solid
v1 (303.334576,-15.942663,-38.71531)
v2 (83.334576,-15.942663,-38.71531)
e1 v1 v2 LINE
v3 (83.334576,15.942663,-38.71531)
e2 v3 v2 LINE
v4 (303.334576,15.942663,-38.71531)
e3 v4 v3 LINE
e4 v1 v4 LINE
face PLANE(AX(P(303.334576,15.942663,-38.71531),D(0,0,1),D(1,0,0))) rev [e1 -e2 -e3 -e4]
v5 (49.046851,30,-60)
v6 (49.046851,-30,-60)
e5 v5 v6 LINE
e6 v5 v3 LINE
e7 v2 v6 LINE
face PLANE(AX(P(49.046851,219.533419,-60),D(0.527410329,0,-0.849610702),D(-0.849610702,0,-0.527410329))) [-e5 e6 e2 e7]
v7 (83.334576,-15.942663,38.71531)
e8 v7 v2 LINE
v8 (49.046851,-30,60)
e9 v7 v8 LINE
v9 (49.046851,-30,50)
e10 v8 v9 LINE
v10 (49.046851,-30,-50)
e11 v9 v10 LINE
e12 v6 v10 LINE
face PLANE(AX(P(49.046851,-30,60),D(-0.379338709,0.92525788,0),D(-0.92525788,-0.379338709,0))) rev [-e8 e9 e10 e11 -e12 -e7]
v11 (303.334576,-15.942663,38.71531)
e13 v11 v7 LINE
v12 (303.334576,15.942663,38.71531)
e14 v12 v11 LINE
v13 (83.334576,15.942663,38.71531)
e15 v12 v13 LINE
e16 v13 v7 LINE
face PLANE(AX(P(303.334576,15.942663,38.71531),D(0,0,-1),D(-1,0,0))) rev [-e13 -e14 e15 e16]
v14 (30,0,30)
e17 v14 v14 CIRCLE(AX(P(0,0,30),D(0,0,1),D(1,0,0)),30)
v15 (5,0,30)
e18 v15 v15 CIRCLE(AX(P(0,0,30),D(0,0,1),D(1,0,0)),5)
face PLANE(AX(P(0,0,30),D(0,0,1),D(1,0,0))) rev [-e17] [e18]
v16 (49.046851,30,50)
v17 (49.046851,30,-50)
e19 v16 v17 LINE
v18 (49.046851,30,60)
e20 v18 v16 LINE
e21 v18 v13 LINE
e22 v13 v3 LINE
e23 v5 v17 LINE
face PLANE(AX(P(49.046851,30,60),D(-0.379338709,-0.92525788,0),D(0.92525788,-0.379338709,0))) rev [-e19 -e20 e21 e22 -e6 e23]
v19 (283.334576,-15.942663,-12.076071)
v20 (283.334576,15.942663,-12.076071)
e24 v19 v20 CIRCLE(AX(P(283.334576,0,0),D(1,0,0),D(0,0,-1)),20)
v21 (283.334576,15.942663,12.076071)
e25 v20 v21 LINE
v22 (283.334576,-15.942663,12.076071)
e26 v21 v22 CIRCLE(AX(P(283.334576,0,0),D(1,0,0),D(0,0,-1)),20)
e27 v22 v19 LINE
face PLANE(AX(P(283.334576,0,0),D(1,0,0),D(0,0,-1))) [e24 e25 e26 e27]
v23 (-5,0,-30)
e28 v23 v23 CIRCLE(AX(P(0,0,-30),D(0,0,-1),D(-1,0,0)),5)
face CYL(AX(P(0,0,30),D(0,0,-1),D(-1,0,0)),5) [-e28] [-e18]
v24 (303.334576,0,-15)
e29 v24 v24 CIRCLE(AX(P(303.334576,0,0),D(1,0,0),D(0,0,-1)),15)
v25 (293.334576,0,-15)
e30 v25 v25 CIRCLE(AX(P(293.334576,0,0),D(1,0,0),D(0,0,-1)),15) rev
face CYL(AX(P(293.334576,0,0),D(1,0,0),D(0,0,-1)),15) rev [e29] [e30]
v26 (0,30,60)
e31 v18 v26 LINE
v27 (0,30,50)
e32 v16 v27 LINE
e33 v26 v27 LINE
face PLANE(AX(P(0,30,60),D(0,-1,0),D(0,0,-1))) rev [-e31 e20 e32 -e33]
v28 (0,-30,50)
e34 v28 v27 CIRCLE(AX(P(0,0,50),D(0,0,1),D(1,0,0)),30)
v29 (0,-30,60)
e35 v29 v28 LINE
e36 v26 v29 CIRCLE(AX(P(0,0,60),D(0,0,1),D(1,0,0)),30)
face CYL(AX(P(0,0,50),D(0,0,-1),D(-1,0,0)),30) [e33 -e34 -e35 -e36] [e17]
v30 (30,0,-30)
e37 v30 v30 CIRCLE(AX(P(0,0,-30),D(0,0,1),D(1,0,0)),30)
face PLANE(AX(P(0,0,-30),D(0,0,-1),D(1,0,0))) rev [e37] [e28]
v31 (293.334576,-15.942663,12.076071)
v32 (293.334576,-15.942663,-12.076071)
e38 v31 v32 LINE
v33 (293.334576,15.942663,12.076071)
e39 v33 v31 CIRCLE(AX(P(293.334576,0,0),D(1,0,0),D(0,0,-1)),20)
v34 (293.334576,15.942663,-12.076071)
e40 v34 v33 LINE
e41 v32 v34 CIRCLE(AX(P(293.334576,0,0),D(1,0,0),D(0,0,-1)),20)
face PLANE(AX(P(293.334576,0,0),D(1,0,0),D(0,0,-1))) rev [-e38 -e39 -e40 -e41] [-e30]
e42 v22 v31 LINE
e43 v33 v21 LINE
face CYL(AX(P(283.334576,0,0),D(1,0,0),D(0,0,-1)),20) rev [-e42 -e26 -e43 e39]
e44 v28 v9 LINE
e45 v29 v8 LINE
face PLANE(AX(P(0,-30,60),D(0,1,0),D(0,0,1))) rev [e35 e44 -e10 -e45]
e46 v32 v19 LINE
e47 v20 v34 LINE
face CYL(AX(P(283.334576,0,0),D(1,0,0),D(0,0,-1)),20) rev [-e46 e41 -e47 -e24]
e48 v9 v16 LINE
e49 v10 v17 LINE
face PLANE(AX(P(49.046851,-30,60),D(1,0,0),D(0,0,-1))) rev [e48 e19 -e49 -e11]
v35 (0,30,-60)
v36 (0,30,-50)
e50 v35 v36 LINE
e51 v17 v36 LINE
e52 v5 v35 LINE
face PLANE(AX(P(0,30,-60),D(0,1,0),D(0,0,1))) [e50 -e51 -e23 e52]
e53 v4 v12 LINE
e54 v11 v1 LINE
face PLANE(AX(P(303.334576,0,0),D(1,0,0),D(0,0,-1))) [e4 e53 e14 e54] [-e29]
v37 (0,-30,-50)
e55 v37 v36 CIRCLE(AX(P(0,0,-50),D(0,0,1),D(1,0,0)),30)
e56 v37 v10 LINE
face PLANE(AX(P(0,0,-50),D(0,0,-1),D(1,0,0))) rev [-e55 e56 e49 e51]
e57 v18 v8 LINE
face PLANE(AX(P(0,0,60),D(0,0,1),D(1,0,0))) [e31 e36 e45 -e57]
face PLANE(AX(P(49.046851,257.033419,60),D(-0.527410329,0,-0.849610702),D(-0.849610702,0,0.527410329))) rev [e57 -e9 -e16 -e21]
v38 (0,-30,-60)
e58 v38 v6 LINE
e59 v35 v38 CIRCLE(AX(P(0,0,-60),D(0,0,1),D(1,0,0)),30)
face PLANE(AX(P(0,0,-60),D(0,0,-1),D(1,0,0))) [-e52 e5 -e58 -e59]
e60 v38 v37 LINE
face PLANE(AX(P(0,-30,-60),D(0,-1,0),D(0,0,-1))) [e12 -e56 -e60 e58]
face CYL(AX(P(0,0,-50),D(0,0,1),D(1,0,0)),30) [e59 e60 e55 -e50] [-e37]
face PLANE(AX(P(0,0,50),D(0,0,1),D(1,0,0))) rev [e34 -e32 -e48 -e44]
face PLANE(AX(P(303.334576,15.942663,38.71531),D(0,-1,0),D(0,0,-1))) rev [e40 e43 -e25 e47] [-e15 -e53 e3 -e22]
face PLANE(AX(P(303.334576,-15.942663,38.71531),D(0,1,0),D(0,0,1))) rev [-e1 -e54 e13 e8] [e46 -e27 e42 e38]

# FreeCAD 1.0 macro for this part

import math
import FreeCAD as App
import Part
import Sketcher

V = App.Vector

doc = App.newDocument("Part")
body = doc.addObject("PartDesign::Body", "Body")

# Sketch on XY plane
sketch1 = body.newObject("Sketcher::SketchObject", "Sketch")
sketch1.AttachmentSupport = (doc.getObject("XY_Plane"), [""])
sketch1.MapMode = "FlatFace"
sketch1.addGeometry(Part.Circle(V(0, 0, 0), V(0, 0, 1), 5), False)
sketch1.addConstraint([
    Sketcher.Constraint("Coincident", 0, 3, -1, 1),
    Sketcher.Constraint("Diameter", 0, 10.0),
])
pad1 = body.newObject("PartDesign::Pad", "Pad")
pad1.Profile = sketch1
pad1.Length = 60
pad1.Midplane = True

# Sketch on XY plane
sketch2 = body.newObject("Sketcher::SketchObject", "Sketch001")
sketch2.AttachmentSupport = (doc.getObject("XY_Plane"), [""])
sketch2.MapMode = "FlatFace"
sketch2.AttachmentOffset = App.Placement(V(0, 0, 30), App.Rotation())
sketch2.addGeometry(Part.Circle(V(0, 0, 0), V(0, 0, 1), 30), False)
sketch2.addConstraint([
    Sketcher.Constraint("Coincident", 0, 3, -1, 1),
    Sketcher.Constraint("Diameter", 0, 60.0),
])
pad2 = body.newObject("PartDesign::Pad", "Pad001")
pad2.Profile = sketch2
pad2.Length = 20
doc.recompute()

mirrored = body.newObject("PartDesign::Mirrored", "Mirrored")
mirrored.Originals = [pad2]
mirrored.MirrorPlane = (doc.getObject("XY_Plane"), [""])
body.Tip = mirrored

# Sketch on XY plane
sketch3 = body.newObject("Sketcher::SketchObject", "Sketch002")
sketch3.AttachmentSupport = (doc.getObject("XY_Plane"), [""])
sketch3.MapMode = "FlatFace"
sketch3.AttachmentOffset = App.Placement(V(0, 0, 50), App.Rotation())
sketch3.addGeometry([
    Part.LineSegment(V(49, -30, 0), V(49, 30, 0)),
    Part.LineSegment(V(49, 30, 0), V(0, 30, 0)),
    Part.ArcOfCircle(Part.Circle(V(0, 0, 0), V(0, 0, 1), 30), math.radians(90), math.radians(270)),
    Part.LineSegment(V(0, -30, 0), V(49, -30, 0)),
], False)
sketch3.addConstraint([
    Sketcher.Constraint("Coincident", 0, 2, 1, 1),
    Sketcher.Constraint("Tangent", 1, 2, 2, 1),
    Sketcher.Constraint("Tangent", 2, 2, 3, 1),
    Sketcher.Constraint("Coincident", 3, 2, 0, 1),
    Sketcher.Constraint("Vertical", 0),
    Sketcher.Constraint("Horizontal", 1),
    Sketcher.Constraint("Horizontal", 3),
    Sketcher.Constraint("Coincident", 2, 3, -1, 1),
    Sketcher.Constraint("Radius", 2, 30.0),
    Sketcher.Constraint("DistanceX", 1, 2, 1, 1, 49.046851),
])
pad3 = body.newObject("PartDesign::Pad", "Pad002")
pad3.Profile = sketch3
pad3.Length = 10
doc.recompute()

mirrored2 = body.newObject("PartDesign::Mirrored", "Mirrored001")
mirrored2.Originals = [pad3]
mirrored2.MirrorPlane = (doc.getObject("XY_Plane"), [""])
body.Tip = mirrored2

# Sketch on XY plane
sketch4 = body.newObject("Sketcher::SketchObject", "Sketch003")
sketch4.AttachmentSupport = (doc.getObject("XY_Plane"), [""])
sketch4.MapMode = "FlatFace"
sketch4.addGeometry([
    Part.LineSegment(V(49, 30, 0), V(49, -30, 0)),
    Part.LineSegment(V(49, -30, 0), V(83, -16, 0)),
    Part.LineSegment(V(83, -16, 0), V(83, 16, 0)),
    Part.LineSegment(V(83, 16, 0), V(49, 30, 0)),
], False)
sketch4.addConstraint([
    Sketcher.Constraint("Coincident", 0, 2, 1, 1),
    Sketcher.Constraint("Coincident", 1, 2, 2, 1),
    Sketcher.Constraint("Coincident", 2, 2, 3, 1),
    Sketcher.Constraint("Coincident", 3, 2, 0, 1),
    Sketcher.Constraint("Vertical", 0),
    Sketcher.Constraint("Vertical", 2),
    Sketcher.Constraint("Equal", 1, 3),
    Sketcher.Constraint("DistanceY", 0, 2, 0, 1, 60.0),
    Sketcher.Constraint("DistanceY", 0, 2, -1, 1, 30.0),
    Sketcher.Constraint("Distance", 1, 37.05748),
    Sketcher.Constraint("DistanceY", 2, 1, 2, 2, 31.885326),
    Sketcher.Constraint("DistanceX", -1, 1, 0, 2, 49.046851),
])
pad4 = body.newObject("PartDesign::Pad", "Pad003")
pad4.Profile = sketch4
pad4.Length = 120
pad4.Midplane = True

# Sketch on XZ plane
sketch5 = body.newObject("Sketcher::SketchObject", "Sketch004")
sketch5.AttachmentSupport = (doc.getObject("XZ_Plane"), [""])
sketch5.MapMode = "FlatFace"
sketch5.addGeometry([
    Part.LineSegment(V(-221, -227, 0), V(49, -60, 0)),  # 0
    Part.LineSegment(V(49, -60, 0), V(92, -33, 0)),  # 1
    Part.LineSegment(V(92, -33, 0), V(362, 134, 0)),  # 2
    Part.LineSegment(V(362, 134, 0), V(697, -405, 0)),  # 3
    Part.LineSegment(V(697, -405, 0), V(114, -767, 0)),  # 4
    Part.LineSegment(V(114, -767, 0), V(-221, -227, 0)),  # 5
], False)
sketch5.addConstraint([
    Sketcher.Constraint("Coincident", 0, 2, 1, 1),
    Sketcher.Constraint("Coincident", 1, 2, 2, 1),
    Sketcher.Constraint("Coincident", 2, 2, 3, 1),
    Sketcher.Constraint("Coincident", 3, 2, 4, 1),
    Sketcher.Constraint("Coincident", 4, 2, 5, 1),
    Sketcher.Constraint("Coincident", 5, 2, 0, 1),
    Sketcher.Constraint("Parallel", 0, 1),
    Sketcher.Constraint("Parallel", 1, 2),
    Sketcher.Constraint("Perpendicular", 2, 3),
    Sketcher.Constraint("Perpendicular", 3, 4),
    Sketcher.Constraint("Perpendicular", 4, 5),
    Sketcher.Constraint("Equal", 0, 2),
    Sketcher.Constraint("DistanceY", 0, 2, -1, 1, 60.0),
    Sketcher.Constraint("DistanceX", 1, 2, 3, 2, 604.502099),
    Sketcher.Constraint("Distance", 1, 50.839722),
    Sketcher.Constraint("Distance", 3, 634.837371),
    Sketcher.Constraint("DistanceX", -1, 1, 0, 2, 49.046851),
    Sketcher.Constraint("DistanceX", -1, 1, 3, 2, 696.742922),
])
pocket1 = body.newObject("PartDesign::Pocket", "Pocket")
pocket1.Profile = sketch5
pocket1.Length = 215.959357
pocket1.Midplane = True
doc.recompute()

mirrored3 = body.newObject("PartDesign::Mirrored", "Mirrored002")
mirrored3.Originals = [pocket1]
mirrored3.MirrorPlane = (doc.getObject("XY_Plane"), [""])
body.Tip = mirrored3

# Sketch on YZ plane
sketch6 = body.newObject("Sketcher::SketchObject", "Sketch005")
sketch6.AttachmentSupport = (doc.getObject("YZ_Plane"), [""])
sketch6.MapMode = "FlatFace"
sketch6.AttachmentOffset = App.Placement(V(0, 0, 83.334576), App.Rotation())
sketch6.addGeometry([
    Part.LineSegment(V(16, 39, 0), V(-16, 39, 0)),
    Part.LineSegment(V(-16, 39, 0), V(-16, -39, 0)),
    Part.LineSegment(V(-16, -39, 0), V(16, -39, 0)),
    Part.LineSegment(V(16, -39, 0), V(16, 39, 0)),
], False)
sketch6.addConstraint([
    Sketcher.Constraint("Coincident", 0, 2, 1, 1),
    Sketcher.Constraint("Coincident", 1, 2, 2, 1),
    Sketcher.Constraint("Coincident", 2, 2, 3, 1),
    Sketcher.Constraint("Coincident", 3, 2, 0, 1),
    Sketcher.Constraint("Horizontal", 0),
    Sketcher.Constraint("Vertical", 1),
    Sketcher.Constraint("Horizontal", 2),
    Sketcher.Constraint("Vertical", 3),
    Sketcher.Constraint("Symmetric", 0, 2, 2, 2, -1, 1),
    Sketcher.Constraint("DistanceY", 1, 2, 1, 1, 77.430619),
    Sketcher.Constraint("DistanceX", 0, 2, 0, 1, 31.885326),
])
pad5 = body.newObject("PartDesign::Pad", "Pad004")
pad5.Profile = sketch6
pad5.Length = 220

# Sketch on YZ plane
sketch7 = body.newObject("Sketcher::SketchObject", "Sketch006")
sketch7.AttachmentSupport = (doc.getObject("YZ_Plane"), [""])
sketch7.MapMode = "FlatFace"
sketch7.AttachmentOffset = App.Placement(V(0, 0, 303.334576), App.Rotation())
sketch7.addGeometry(Part.Circle(V(0, 0, 0), V(0, 0, 1), 15), False)
sketch7.addConstraint([
    Sketcher.Constraint("Coincident", 0, 3, -1, 1),
    Sketcher.Constraint("Diameter", 0, 30.0),
])
pocket2 = body.newObject("PartDesign::Pocket", "Pocket001")
pocket2.Profile = sketch7
pocket2.Length = 10

# Sketch on YZ plane
sketch8 = body.newObject("Sketcher::SketchObject", "Sketch007")
sketch8.AttachmentSupport = (doc.getObject("YZ_Plane"), [""])
sketch8.MapMode = "FlatFace"
sketch8.AttachmentOffset = App.Placement(V(0, 0, 293.334576), App.Rotation())
sketch8.addGeometry(Part.Circle(V(0, 0, 0), V(0, 0, 1), 20), False)
sketch8.addConstraint([
    Sketcher.Constraint("Coincident", 0, 3, -1, 1),
    Sketcher.Constraint("Diameter", 0, 40.0),
])
pocket3 = body.newObject("PartDesign::Pocket", "Pocket002")
pocket3.Profile = sketch8
pocket3.Length = 10

doc.recompute()
